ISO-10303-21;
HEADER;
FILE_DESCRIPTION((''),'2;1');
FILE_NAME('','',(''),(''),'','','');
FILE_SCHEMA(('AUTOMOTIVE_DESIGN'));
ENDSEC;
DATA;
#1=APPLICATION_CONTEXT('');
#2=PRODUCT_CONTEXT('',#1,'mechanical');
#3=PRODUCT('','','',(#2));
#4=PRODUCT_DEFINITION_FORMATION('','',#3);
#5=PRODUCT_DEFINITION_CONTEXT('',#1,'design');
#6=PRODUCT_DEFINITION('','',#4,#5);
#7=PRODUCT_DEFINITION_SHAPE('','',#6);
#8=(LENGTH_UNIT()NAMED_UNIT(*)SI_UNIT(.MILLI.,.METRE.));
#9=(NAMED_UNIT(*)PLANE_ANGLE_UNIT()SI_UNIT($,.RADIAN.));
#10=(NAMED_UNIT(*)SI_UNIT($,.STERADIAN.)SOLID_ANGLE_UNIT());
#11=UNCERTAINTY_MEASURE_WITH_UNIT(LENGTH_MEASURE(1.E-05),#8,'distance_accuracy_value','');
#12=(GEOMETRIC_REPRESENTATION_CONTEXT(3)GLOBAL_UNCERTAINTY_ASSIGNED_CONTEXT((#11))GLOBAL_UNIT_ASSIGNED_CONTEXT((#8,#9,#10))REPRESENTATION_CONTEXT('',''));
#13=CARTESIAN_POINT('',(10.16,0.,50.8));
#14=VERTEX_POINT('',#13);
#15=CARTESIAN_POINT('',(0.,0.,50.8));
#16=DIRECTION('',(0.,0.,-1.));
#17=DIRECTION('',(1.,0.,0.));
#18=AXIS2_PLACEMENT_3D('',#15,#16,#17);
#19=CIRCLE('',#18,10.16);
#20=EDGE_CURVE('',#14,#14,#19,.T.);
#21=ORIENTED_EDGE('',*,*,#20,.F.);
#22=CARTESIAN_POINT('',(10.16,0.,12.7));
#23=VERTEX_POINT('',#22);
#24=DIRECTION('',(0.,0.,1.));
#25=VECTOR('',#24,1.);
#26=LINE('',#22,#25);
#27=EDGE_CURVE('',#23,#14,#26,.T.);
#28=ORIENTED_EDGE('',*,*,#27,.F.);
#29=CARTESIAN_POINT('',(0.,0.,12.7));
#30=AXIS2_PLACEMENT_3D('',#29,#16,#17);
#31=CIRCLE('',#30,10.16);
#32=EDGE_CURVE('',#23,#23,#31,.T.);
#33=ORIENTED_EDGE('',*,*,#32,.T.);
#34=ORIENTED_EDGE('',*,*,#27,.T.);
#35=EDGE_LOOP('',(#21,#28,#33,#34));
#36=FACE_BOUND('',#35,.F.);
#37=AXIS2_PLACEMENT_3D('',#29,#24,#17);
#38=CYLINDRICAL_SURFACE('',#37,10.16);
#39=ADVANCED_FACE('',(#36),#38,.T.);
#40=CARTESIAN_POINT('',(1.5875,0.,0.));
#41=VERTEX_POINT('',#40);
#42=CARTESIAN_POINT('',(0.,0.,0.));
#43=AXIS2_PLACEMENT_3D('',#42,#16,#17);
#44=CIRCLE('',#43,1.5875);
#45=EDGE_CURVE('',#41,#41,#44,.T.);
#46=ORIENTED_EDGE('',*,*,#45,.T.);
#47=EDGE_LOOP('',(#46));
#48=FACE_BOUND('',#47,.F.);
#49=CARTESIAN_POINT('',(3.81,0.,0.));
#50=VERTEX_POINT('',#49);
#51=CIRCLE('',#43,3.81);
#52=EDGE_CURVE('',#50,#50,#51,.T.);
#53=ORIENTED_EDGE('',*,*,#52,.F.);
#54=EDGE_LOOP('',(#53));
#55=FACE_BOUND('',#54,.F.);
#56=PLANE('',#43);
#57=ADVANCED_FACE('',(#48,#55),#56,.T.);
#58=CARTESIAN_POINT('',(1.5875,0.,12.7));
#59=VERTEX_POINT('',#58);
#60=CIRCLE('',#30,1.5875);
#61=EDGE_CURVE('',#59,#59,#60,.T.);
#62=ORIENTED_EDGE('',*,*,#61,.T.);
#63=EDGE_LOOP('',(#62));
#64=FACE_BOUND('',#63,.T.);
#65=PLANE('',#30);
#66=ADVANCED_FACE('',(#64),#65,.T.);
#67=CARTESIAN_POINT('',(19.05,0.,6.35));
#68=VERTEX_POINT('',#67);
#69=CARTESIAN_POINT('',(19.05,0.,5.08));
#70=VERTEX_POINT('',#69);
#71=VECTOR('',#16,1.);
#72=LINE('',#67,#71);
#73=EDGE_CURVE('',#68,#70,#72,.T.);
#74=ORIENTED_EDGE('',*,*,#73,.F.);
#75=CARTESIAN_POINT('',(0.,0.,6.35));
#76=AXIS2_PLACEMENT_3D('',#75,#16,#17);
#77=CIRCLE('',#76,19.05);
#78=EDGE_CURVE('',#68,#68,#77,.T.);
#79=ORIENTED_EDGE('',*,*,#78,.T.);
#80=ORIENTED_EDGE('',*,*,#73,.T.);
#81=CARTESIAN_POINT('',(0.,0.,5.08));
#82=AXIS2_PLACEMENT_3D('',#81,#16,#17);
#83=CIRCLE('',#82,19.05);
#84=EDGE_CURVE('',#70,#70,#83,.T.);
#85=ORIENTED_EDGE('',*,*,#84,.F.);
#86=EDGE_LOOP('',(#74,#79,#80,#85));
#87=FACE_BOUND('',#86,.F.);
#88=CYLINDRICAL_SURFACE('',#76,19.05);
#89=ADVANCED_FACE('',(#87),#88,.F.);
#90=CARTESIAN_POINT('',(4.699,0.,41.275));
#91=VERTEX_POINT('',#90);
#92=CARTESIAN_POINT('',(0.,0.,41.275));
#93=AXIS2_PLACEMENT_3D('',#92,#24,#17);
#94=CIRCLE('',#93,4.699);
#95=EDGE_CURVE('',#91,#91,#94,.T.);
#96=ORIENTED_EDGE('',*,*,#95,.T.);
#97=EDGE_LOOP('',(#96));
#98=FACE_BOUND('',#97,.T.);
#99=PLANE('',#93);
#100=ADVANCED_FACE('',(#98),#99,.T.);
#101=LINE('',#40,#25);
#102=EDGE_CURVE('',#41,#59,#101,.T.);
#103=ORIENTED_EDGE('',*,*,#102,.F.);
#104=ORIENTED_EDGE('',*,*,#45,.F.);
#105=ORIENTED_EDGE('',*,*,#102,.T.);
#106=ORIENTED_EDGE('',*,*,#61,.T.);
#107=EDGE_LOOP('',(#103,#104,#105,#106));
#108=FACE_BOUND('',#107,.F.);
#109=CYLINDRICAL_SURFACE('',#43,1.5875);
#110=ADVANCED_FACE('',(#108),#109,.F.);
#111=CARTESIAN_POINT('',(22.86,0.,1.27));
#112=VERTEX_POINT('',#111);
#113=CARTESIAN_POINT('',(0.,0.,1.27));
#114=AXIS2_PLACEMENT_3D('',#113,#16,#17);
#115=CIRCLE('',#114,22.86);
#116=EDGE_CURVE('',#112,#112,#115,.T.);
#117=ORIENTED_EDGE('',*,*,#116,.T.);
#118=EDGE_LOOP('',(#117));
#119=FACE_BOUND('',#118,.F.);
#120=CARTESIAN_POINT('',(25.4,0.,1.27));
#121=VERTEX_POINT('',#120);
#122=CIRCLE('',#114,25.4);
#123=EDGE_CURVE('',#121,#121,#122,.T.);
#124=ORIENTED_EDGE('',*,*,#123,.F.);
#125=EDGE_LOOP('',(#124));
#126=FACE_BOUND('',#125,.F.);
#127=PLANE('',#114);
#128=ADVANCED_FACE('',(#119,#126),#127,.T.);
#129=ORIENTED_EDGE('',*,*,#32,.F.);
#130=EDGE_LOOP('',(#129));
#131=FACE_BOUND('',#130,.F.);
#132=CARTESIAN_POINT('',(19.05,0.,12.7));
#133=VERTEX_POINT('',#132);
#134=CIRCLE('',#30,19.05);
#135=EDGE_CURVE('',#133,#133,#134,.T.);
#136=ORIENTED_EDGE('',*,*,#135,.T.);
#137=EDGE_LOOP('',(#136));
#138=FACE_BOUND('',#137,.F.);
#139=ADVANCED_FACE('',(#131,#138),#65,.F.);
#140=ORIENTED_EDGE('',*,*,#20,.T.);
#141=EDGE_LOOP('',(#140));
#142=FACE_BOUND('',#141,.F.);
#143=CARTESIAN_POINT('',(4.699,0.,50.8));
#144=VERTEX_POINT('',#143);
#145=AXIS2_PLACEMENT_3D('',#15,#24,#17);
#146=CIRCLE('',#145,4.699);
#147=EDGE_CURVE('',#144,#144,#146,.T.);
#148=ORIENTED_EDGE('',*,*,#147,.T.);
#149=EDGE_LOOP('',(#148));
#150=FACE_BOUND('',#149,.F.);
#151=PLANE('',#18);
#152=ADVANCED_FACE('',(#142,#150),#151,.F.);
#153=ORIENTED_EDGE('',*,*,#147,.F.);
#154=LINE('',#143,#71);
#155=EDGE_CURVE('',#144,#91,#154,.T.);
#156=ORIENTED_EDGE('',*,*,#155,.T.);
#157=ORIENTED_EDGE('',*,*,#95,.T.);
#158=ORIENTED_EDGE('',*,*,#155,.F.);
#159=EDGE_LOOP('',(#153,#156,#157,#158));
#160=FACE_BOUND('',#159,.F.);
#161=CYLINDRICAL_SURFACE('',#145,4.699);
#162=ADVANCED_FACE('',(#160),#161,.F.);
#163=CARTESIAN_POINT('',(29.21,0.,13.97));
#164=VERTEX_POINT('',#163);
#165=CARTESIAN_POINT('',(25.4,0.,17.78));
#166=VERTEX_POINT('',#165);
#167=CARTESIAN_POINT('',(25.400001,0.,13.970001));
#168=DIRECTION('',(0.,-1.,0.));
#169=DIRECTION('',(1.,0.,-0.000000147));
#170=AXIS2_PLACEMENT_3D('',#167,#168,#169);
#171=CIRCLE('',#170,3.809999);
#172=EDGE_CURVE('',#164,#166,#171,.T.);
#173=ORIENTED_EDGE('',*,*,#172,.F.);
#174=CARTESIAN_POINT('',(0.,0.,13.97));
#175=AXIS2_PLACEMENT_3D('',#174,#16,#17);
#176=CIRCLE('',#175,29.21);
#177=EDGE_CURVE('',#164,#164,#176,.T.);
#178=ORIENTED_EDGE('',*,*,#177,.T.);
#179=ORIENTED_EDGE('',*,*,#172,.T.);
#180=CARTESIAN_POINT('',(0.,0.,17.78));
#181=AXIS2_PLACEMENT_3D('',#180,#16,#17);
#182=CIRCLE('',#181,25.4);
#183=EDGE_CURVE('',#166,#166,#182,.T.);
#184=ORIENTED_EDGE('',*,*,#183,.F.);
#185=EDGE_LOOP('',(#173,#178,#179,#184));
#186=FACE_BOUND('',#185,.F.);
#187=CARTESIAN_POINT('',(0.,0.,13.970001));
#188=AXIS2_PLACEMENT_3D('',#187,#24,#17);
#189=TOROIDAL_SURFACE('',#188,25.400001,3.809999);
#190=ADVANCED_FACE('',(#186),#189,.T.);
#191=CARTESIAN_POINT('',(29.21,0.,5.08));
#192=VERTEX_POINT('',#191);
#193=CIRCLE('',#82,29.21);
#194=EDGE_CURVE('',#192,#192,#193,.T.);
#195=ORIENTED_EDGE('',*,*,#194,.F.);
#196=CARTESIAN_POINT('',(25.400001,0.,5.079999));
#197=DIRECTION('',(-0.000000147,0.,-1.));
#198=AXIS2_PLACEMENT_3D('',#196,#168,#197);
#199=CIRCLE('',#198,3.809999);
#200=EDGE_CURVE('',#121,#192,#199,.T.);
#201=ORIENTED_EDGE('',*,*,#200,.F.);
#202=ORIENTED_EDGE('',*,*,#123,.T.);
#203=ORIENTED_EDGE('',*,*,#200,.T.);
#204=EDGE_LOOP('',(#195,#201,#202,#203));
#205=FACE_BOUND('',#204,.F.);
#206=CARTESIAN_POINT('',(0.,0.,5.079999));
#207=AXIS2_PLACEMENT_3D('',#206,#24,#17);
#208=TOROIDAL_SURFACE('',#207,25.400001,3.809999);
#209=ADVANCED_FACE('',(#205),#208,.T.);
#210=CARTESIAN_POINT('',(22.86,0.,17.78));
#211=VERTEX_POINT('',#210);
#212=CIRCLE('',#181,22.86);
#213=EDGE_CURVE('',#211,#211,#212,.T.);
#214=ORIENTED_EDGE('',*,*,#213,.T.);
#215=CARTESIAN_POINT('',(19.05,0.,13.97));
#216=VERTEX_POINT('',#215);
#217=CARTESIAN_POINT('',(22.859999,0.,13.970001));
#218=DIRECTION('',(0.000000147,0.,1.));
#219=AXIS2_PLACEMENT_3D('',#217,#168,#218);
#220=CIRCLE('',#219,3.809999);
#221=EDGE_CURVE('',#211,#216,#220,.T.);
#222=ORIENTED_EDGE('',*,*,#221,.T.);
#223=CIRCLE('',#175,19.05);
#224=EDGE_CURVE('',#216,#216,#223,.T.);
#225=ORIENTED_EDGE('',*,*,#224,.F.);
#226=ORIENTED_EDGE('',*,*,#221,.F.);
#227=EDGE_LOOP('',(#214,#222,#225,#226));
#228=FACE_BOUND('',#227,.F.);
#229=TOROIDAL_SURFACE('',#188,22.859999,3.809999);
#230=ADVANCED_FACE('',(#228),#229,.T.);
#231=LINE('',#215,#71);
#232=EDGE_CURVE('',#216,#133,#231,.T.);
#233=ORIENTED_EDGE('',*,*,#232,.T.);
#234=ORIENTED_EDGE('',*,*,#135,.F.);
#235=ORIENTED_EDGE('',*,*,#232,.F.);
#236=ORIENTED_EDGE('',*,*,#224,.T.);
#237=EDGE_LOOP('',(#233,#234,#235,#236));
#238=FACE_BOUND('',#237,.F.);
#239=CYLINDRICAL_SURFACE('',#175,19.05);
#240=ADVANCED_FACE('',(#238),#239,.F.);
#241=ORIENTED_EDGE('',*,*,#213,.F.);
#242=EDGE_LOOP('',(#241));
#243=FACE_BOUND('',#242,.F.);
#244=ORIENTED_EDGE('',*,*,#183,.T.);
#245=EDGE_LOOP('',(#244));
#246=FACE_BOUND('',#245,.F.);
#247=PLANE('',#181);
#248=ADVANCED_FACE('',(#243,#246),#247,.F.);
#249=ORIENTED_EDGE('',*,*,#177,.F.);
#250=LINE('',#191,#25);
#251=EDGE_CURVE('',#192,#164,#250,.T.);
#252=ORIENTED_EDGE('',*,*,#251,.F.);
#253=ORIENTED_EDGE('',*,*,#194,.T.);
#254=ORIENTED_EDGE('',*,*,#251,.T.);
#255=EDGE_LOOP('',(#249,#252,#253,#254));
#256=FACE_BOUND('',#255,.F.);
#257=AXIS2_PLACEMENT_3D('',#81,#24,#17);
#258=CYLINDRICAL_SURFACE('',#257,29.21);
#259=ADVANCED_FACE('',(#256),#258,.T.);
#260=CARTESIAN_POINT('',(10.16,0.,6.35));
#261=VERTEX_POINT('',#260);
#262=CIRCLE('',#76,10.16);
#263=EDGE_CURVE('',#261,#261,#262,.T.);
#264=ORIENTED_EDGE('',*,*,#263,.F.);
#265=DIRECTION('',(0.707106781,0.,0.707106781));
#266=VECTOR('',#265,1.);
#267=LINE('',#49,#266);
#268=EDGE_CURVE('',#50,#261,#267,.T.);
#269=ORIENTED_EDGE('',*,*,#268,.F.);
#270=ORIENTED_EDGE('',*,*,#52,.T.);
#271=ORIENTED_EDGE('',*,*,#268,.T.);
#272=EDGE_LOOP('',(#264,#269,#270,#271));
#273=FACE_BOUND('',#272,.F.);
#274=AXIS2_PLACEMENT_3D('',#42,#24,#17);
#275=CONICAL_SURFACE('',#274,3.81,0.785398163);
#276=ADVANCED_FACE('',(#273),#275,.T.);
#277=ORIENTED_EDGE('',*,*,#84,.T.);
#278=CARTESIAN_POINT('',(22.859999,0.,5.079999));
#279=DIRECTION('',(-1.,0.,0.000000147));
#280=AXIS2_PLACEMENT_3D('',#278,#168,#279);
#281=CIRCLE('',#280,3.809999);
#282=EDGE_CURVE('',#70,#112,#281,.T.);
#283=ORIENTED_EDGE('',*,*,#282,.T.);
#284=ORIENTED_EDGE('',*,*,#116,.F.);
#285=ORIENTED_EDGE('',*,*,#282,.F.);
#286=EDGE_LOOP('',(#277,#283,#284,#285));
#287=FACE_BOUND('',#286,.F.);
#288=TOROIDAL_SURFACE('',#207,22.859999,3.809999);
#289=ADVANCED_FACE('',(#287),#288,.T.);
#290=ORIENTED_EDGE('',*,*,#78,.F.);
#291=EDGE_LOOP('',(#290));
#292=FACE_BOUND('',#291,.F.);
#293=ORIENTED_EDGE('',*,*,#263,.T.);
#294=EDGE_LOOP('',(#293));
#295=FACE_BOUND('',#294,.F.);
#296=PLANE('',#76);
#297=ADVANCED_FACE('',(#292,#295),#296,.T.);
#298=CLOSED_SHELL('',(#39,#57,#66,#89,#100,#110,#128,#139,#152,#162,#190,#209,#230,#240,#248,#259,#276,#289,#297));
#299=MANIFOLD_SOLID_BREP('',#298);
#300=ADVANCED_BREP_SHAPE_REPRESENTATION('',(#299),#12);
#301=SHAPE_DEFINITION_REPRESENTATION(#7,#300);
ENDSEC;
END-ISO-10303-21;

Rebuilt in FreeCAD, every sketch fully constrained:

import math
import FreeCAD as App
import Part
import Sketcher
from FreeCAD import Vector
Q = App.Units.Quantity

doc = App.newDocument("Part")
params = doc.addObject("Spreadsheet::Sheet", "Params")
for row, (alias, value) in enumerate([
    ("sketch1_height", "2 in"),
    ("sketch1_radius", "0.15 in"),
    ("sketch1_width", "0.1 in"),
    ("sketch1_width2", "0.4 in"),
    ("sketch1_height2", "1.5 in"),
    ("revolution_angle", "360 deg"),
    ("sketch2_diameter", "0.37 in"),
    ("pocket1_length", "0.375 in"),
    ("sketch3_diameter", "0.125 in"),
    ("pocket2_length", "0.5 in"),
], start=1):
    params.set(f"A{row}", alias)
    params.set(f"B{row}", "=" + value)
    params.setAlias(f"B{row}", alias)

body = doc.addObject("PartDesign::Body", "Body")

# Sketch on XZ plane
sketch1 = body.newObject("Sketcher::SketchObject", "Sketch")
sketch1.AttachmentSupport = (doc.getObject("XZ_Plane"), [""])
sketch1.MapMode = "FlatFace"
sketch1.addGeometry([
    Part.LineSegment(Vector(0, 50.8, 0), Vector(0, 0, 0)),  # 0
    Part.LineSegment(Vector(0, 0, 0), Vector(3.8, 0, 0)),  # 1
    Part.LineSegment(Vector(3.8, 0, 0), Vector(10.2, 6.3, 0)),  # 2
    Part.LineSegment(Vector(10.2, 6.3, 0), Vector(19.1, 6.3, 0)),  # 3
    Part.LineSegment(Vector(19.1, 6.3, 0), Vector(19.1, 5.1, 0)),  # 4
    Part.ArcOfCircle(Part.Circle(Vector(22.9, 5.1, 0), Vector(0, 0, 1), 3.8), math.radians(180), math.radians(270)),  # 5
    Part.LineSegment(Vector(22.9, 1.3, 0), Vector(25.4, 1.3, 0)),  # 6
    Part.ArcOfCircle(Part.Circle(Vector(25.4, 5.1, 0), Vector(0, 0, 1), 3.8), math.radians(-90), math.radians(0)),  # 7
    Part.LineSegment(Vector(29.2, 5.1, 0), Vector(29.2, 14, 0)),  # 8
    Part.ArcOfCircle(Part.Circle(Vector(25.4, 14, 0), Vector(0, 0, 1), 3.8), math.radians(0), math.radians(90)),  # 9
    Part.LineSegment(Vector(25.4, 17.8, 0), Vector(22.9, 17.8, 0)),  # 10
    Part.ArcOfCircle(Part.Circle(Vector(22.9, 14, 0), Vector(0, 0, 1), 3.8), math.radians(90), math.radians(180)),  # 11
    Part.LineSegment(Vector(19.1, 14, 0), Vector(19.1, 12.7, 0)),  # 12
    Part.LineSegment(Vector(19.1, 12.7, 0), Vector(10.2, 12.7, 0)),  # 13
    Part.LineSegment(Vector(10.2, 12.7, 0), Vector(10.2, 50.8, 0)),  # 14
    Part.LineSegment(Vector(10.2, 50.8, 0), Vector(0, 50.8, 0)),  # 15
], False)
sketch1.addConstraint([
    Sketcher.Constraint("Coincident", 0, 2, 1, 1),
    Sketcher.Constraint("Coincident", 1, 2, 2, 1),
    Sketcher.Constraint("Coincident", 2, 2, 3, 1),
    Sketcher.Constraint("Coincident", 3, 2, 4, 1),
    Sketcher.Constraint("Tangent", 4, 2, 5, 1),
    Sketcher.Constraint("Tangent", 5, 2, 6, 1),
    Sketcher.Constraint("Tangent", 6, 2, 7, 1),
    Sketcher.Constraint("Tangent", 7, 2, 8, 1),
    Sketcher.Constraint("Tangent", 8, 2, 9, 1),
    Sketcher.Constraint("Tangent", 9, 2, 10, 1),
    Sketcher.Constraint("Tangent", 10, 2, 11, 1),
    Sketcher.Constraint("Tangent", 11, 2, 12, 1),
    Sketcher.Constraint("Coincident", 12, 2, 13, 1),
    Sketcher.Constraint("Coincident", 13, 2, 14, 1),
    Sketcher.Constraint("Coincident", 14, 2, 15, 1),
    Sketcher.Constraint("Coincident", 15, 2, 0, 1),
    Sketcher.Constraint("Vertical", 0),
    Sketcher.Constraint("Horizontal", 1),
    Sketcher.Constraint("Horizontal", 3),
    Sketcher.Constraint("Vertical", 4),
    Sketcher.Constraint("Horizontal", 6),
    Sketcher.Constraint("Vertical", 8),
    Sketcher.Constraint("Horizontal", 10),
    Sketcher.Constraint("Vertical", 12),
    Sketcher.Constraint("Horizontal", 13),
    Sketcher.Constraint("Vertical", 14),
    Sketcher.Constraint("Horizontal", 15),
    Sketcher.Constraint("Coincident", 0, 2, -1, 1),
    Sketcher.Constraint("Equal", 5, 7),
    Sketcher.Constraint("Equal", 7, 9),
    Sketcher.Constraint("Equal", 9, 11),
    Sketcher.Constraint("Vertical", 5, 3, 11, 3),
    Sketcher.Constraint("Vertical", 2, 2, 13, 2),
    Sketcher.Constraint("Equal", 13, 8),
    Sketcher.Constraint("Equal", 4, 12),
    Sketcher.Constraint("DistanceY", 0, 2, 0, 1, Q("2 in")),
    Sketcher.Constraint("Radius", 5, Q("0.15 in")),
    Sketcher.Constraint("DistanceX", 6, 1, 6, 2, Q("0.1 in")),
    Sketcher.Constraint("DistanceX", 15, 2, 15, 1, Q("0.4 in")),
    Sketcher.Constraint("DistanceY", 14, 1, 14, 2, Q("1.5 in")),
    Sketcher.Constraint("DistanceX", -1, 1, 7, 3, Q("1 in")),
    Sketcher.Constraint("Angle", 2, Q("45 deg")),
    Sketcher.Constraint("DistanceX", 1, 1, 1, 2, Q("0.15 in")),
])
sketch1.setExpression("Constraints[35]", "Params.sketch1_height")
sketch1.setExpression("Constraints[36]", "Params.sketch1_radius")
sketch1.setExpression("Constraints[37]", "Params.sketch1_width")
sketch1.setExpression("Constraints[38]", "Params.sketch1_width2")
sketch1.setExpression("Constraints[39]", "Params.sketch1_height2")
revolution = body.newObject("PartDesign::Revolution", "Revolution")
revolution.Profile = sketch1
revolution.ReferenceAxis = (sketch1, ["V_Axis"])
revolution.setExpression("Angle", "Params.revolution_angle")

# Sketch on XY plane
sketch2 = body.newObject("Sketcher::SketchObject", "Sketch001")
sketch2.AttachmentSupport = (doc.getObject("XY_Plane"), [""])
sketch2.MapMode = "FlatFace"
sketch2.AttachmentOffset = App.Placement(Vector(0, 0, 2 * 25.4), App.Rotation())
sketch2.addGeometry(Part.Circle(Vector(0, 0, 0), Vector(0, 0, 1), 4.7), False)
sketch2.addConstraint([
    Sketcher.Constraint("Coincident", 0, 3, -1, 1),
    Sketcher.Constraint("Diameter", 0, Q("0.37 in")),
])
sketch2.setExpression("Constraints[1]", "Params.sketch2_diameter")
pocket1 = body.newObject("PartDesign::Pocket", "Pocket")
pocket1.Profile = sketch2
pocket1.setExpression("Length", "Params.pocket1_length")

# Sketch on XY plane
sketch3 = body.newObject("Sketcher::SketchObject", "Sketch002")
sketch3.AttachmentSupport = (doc.getObject("XY_Plane"), [""])
sketch3.MapMode = "FlatFace"
sketch3.addGeometry(Part.Circle(Vector(0, 0, 0), Vector(0, 0, 1), 1.6), False)
sketch3.addConstraint([
    Sketcher.Constraint("Coincident", 0, 3, -1, 1),
    Sketcher.Constraint("Diameter", 0, Q("0.125 in")),
])
sketch3.setExpression("Constraints[1]", "Params.sketch3_diameter")
pocket2 = body.newObject("PartDesign::Pocket", "Pocket001")
pocket2.Profile = sketch3
pocket2.setExpression("Length", "Params.pocket2_length")
pocket2.Reversed = True

doc.recompute()
